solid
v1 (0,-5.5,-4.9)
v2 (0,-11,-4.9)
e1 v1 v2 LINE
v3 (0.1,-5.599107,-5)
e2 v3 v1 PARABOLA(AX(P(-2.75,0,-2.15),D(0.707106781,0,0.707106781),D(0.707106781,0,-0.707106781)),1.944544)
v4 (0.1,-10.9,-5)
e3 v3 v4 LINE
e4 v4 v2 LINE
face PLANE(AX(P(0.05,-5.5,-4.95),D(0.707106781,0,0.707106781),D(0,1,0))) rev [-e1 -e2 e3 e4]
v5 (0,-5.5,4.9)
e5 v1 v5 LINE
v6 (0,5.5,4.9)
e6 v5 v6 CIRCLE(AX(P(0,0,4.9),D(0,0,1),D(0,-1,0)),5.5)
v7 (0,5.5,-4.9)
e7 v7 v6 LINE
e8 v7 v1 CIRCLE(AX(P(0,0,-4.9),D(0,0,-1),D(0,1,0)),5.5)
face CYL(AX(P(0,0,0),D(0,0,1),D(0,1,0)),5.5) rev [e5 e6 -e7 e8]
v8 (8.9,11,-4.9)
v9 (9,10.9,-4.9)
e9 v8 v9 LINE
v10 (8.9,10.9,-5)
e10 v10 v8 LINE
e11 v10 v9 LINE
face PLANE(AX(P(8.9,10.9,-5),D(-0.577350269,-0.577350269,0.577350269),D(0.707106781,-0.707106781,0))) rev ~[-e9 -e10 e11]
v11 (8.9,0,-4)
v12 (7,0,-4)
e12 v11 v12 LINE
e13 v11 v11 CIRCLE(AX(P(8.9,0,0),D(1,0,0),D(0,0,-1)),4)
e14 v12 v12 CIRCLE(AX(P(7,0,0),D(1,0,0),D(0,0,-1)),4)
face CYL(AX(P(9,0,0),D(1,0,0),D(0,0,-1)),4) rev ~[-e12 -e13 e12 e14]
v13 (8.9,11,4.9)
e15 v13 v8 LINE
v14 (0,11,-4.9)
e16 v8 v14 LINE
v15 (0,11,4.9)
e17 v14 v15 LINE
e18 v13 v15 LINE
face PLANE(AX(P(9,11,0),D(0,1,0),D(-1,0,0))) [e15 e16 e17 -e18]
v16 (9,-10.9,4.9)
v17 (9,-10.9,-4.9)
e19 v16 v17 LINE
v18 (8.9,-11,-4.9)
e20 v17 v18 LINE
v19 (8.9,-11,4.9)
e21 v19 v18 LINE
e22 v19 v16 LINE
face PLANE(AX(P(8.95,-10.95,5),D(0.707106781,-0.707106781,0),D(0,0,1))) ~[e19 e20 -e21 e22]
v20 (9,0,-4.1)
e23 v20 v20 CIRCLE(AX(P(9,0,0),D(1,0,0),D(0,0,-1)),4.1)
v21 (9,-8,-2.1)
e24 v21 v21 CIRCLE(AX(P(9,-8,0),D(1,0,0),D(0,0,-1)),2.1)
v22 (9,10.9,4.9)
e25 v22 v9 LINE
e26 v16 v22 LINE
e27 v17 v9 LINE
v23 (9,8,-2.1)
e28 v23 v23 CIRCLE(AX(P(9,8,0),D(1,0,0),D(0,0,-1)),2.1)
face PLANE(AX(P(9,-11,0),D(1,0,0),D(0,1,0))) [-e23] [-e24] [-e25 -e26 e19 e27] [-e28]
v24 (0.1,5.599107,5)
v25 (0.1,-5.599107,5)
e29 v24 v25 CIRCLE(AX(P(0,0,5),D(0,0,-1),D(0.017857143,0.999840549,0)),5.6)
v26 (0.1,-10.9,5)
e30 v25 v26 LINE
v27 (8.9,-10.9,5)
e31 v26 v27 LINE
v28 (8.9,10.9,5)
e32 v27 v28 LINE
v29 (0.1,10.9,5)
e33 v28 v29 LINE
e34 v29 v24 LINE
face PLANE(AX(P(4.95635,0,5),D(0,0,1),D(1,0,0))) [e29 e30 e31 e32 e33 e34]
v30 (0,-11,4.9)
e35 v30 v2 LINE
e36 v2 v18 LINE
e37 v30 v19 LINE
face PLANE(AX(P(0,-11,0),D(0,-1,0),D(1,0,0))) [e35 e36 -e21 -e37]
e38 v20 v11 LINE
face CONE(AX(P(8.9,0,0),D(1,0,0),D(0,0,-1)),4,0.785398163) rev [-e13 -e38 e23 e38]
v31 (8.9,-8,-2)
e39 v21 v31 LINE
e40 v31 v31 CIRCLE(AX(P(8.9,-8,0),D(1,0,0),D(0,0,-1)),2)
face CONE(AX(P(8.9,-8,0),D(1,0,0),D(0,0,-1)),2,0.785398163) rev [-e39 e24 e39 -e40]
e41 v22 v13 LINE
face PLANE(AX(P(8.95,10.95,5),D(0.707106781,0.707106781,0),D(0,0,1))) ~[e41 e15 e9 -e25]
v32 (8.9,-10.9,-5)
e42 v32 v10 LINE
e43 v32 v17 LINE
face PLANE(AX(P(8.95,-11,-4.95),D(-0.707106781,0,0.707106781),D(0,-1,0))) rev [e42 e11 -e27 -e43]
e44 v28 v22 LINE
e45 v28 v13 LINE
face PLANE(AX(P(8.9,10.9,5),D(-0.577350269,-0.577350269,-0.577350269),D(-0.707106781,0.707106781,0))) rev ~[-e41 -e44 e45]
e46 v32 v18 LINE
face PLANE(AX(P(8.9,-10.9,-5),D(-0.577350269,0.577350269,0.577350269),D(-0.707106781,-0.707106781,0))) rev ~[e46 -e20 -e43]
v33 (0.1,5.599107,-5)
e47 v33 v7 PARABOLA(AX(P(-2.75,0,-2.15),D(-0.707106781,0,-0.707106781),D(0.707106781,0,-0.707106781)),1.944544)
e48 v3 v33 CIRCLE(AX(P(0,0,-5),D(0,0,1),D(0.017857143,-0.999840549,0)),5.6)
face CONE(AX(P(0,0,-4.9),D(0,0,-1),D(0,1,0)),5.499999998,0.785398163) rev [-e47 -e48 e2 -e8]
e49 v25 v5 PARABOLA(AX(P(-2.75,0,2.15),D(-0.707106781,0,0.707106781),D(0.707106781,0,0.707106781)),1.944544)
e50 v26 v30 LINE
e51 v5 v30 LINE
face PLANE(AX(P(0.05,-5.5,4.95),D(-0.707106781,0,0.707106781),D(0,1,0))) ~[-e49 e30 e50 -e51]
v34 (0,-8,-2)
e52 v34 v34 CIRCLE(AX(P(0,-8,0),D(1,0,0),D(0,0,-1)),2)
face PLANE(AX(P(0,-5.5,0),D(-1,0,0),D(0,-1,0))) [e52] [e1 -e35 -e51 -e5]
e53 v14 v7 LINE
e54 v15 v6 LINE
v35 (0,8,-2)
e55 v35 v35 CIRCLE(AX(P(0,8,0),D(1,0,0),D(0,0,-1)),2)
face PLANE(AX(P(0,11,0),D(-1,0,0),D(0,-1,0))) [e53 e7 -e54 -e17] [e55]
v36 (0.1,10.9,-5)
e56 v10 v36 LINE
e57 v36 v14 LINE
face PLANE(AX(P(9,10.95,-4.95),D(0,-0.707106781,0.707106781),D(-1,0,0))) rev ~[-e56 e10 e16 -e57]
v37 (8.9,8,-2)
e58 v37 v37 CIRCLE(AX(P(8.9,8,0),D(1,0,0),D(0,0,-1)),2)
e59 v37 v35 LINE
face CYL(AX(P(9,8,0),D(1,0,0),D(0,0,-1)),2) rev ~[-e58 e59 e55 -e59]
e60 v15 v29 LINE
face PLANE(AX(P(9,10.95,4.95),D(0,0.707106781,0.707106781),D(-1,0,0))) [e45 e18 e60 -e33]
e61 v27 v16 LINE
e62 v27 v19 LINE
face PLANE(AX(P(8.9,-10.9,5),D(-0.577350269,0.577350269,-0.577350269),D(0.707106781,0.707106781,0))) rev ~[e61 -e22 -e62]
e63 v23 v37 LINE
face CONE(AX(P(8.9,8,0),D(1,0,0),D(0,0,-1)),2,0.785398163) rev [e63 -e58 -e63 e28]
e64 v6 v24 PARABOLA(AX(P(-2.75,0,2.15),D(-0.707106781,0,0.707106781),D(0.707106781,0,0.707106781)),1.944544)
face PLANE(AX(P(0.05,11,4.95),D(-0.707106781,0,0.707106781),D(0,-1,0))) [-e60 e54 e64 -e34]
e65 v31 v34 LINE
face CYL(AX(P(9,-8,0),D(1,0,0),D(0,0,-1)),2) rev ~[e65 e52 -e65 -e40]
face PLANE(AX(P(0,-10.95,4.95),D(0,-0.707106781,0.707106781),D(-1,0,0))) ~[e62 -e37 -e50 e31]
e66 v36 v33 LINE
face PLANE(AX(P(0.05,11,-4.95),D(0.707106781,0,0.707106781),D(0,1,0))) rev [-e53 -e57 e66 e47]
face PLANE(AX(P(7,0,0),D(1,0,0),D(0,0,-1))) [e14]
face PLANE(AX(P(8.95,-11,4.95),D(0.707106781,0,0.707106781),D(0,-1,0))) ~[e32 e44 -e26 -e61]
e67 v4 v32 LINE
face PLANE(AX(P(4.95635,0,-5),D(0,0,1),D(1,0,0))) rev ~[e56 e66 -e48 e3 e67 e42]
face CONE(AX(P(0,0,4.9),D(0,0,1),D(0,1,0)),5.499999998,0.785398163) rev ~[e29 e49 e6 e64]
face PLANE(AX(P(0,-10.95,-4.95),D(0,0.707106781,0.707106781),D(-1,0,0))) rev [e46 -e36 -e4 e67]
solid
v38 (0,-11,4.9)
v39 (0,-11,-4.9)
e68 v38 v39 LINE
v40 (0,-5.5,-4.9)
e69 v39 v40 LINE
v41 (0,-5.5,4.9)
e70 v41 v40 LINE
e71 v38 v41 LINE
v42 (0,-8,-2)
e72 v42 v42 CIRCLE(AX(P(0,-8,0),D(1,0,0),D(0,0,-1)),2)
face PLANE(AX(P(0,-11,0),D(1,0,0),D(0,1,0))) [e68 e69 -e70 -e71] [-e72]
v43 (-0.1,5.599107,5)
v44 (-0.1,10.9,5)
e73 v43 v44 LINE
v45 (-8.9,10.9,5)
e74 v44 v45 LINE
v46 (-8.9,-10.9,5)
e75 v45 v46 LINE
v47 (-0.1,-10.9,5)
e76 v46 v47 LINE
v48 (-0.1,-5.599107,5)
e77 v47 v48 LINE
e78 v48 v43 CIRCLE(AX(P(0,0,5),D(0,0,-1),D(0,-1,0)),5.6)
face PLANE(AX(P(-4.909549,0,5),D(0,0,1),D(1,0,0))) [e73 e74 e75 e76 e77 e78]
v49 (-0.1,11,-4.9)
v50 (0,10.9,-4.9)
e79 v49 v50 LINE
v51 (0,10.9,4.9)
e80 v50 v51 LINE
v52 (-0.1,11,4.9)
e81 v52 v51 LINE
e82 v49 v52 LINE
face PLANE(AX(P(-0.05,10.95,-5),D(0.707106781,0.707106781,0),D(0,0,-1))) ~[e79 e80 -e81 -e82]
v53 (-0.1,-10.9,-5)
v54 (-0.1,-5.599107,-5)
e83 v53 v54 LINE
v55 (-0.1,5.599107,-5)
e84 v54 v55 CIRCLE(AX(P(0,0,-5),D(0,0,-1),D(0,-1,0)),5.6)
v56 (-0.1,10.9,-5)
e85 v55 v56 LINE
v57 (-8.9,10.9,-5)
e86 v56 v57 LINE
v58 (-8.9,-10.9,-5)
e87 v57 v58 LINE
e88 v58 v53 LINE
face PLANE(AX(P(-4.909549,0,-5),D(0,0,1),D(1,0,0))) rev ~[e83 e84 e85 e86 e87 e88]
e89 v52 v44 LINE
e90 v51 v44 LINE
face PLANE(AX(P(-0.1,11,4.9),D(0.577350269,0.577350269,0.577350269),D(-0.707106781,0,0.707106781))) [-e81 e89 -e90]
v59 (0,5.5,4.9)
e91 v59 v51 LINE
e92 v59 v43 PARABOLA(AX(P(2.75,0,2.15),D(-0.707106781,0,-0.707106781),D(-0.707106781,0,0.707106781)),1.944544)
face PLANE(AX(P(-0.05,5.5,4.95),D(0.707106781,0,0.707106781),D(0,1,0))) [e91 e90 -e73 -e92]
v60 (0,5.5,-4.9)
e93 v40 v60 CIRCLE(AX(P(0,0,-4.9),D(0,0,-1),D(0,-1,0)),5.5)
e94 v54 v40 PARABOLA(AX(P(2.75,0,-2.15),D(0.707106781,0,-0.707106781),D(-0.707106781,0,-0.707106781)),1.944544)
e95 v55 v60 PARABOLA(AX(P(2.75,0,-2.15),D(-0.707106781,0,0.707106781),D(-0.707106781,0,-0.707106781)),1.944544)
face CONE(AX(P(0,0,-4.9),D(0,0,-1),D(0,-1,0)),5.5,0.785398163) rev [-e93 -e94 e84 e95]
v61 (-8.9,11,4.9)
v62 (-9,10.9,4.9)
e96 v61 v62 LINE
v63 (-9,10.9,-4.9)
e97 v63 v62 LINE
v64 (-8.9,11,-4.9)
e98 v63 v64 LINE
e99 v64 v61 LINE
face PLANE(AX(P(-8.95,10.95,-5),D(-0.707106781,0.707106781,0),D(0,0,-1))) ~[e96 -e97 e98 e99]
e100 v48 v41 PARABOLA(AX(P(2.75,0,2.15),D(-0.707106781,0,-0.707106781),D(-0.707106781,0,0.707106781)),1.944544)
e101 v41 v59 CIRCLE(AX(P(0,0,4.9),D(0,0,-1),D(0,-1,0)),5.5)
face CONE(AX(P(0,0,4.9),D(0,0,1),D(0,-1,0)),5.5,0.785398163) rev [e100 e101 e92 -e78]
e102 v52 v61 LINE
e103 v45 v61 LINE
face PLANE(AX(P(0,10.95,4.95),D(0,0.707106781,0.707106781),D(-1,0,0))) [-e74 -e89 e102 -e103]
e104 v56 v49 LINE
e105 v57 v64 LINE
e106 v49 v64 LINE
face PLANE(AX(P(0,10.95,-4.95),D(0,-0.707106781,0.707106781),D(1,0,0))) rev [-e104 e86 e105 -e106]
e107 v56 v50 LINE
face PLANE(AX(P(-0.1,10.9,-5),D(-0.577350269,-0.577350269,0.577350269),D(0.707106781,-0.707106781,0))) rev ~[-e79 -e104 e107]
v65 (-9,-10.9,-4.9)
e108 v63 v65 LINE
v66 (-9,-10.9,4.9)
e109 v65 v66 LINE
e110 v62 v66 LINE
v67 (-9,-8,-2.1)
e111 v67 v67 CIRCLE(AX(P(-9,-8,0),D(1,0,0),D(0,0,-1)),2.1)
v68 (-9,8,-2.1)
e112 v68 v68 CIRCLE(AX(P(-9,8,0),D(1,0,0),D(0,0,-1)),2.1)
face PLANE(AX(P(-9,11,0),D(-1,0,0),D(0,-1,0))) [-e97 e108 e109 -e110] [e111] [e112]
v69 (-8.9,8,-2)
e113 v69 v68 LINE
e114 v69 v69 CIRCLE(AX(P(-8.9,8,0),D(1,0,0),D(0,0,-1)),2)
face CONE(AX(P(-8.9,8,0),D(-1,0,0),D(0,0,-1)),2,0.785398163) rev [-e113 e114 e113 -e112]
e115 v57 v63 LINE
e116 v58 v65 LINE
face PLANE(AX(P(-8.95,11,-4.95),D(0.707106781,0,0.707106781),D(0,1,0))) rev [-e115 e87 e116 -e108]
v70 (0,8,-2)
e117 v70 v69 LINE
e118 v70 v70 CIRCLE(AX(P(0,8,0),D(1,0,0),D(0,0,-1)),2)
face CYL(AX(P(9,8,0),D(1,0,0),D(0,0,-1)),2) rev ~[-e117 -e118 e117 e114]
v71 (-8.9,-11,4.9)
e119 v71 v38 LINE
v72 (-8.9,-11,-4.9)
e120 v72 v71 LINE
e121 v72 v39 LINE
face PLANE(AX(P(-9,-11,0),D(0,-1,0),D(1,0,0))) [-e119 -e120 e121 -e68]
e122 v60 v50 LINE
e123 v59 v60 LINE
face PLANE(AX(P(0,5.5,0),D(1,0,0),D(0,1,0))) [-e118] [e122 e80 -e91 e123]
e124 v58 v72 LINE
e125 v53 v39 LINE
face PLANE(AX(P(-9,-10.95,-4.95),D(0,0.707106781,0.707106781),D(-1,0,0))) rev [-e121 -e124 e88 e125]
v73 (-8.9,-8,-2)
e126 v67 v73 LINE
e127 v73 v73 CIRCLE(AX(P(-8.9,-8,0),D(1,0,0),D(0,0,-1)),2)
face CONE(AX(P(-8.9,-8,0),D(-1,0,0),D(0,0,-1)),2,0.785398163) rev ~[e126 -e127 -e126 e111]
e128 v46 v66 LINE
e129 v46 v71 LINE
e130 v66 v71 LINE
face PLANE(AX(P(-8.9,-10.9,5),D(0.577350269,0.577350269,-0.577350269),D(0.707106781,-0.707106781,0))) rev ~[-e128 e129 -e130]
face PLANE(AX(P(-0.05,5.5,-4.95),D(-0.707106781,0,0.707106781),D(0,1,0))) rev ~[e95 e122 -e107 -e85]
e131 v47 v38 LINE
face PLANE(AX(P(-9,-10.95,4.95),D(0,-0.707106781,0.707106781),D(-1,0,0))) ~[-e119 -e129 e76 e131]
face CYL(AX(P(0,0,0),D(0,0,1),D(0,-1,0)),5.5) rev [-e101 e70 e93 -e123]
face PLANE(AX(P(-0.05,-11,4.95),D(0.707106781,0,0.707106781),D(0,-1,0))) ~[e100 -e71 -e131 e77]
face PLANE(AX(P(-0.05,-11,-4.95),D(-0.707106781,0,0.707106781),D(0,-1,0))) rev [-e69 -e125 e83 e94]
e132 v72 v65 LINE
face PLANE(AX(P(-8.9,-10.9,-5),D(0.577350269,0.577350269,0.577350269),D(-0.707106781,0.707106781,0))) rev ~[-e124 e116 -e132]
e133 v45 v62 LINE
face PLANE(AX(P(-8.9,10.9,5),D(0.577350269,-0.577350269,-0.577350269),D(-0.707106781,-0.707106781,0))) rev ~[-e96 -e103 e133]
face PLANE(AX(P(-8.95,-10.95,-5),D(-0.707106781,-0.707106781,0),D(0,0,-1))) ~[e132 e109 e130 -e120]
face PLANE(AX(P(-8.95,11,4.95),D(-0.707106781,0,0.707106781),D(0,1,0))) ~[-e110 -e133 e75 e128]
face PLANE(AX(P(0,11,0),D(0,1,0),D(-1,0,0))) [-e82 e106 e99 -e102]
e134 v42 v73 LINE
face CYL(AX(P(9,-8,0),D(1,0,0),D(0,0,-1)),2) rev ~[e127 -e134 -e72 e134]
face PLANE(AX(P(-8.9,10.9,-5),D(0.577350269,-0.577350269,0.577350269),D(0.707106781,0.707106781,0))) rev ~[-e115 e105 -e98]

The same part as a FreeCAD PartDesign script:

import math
import FreeCAD as App
import Part
import Sketcher


def edges_at(feature, points):
    """Names of the edges that pass closest to the given points."""
    edges = feature.Shape.Edges
    near = lambda p: min(range(len(edges)), key=lambda i: edges[i].distToShape(Part.Vertex(*p))[0])
    return sorted({f"Edge{near(p) + 1}" for p in points})

doc = App.newDocument("Part")
body = doc.addObject("PartDesign::Body", "Body")

# Sketch on XY plane
sketch1 = body.newObject("Sketcher::SketchObject", "Sketch")
sketch1.AttachmentSupport = (doc.getObject("XY_Plane"), [""])
sketch1.MapMode = "FlatFace"
sketch1.addGeometry([
    Part.LineSegment(App.Vector(0, 6, 0), App.Vector(0, 11, 0)),  # 0
    Part.LineSegment(App.Vector(0, 11, 0), App.Vector(-9, 11, 0)),  # 1
    Part.LineSegment(App.Vector(-9, 11, 0), App.Vector(-9, -11, 0)),  # 2
    Part.LineSegment(App.Vector(-9, -11, 0), App.Vector(0, -11, 0)),  # 3
    Part.LineSegment(App.Vector(0, -11, 0), App.Vector(0, -6, 0)),  # 4
    Part.ArcOfCircle(Part.Circle(App.Vector(0, 0, 0), App.Vector(0, 0, 1), 6), math.radians(90), math.radians(270)),  # 5
], False)
sketch1.addConstraint([
    Sketcher.Constraint("Coincident", 0, 2, 1, 1),
    Sketcher.Constraint("Coincident", 1, 2, 2, 1),
    Sketcher.Constraint("Coincident", 2, 2, 3, 1),
    Sketcher.Constraint("Coincident", 3, 2, 4, 1),
    Sketcher.Constraint("Coincident", 4, 2, 5, 2),
    Sketcher.Constraint("Coincident", 5, 1, 0, 1),
    Sketcher.Constraint("Vertical", 0),
    Sketcher.Constraint("Horizontal", 1),
    Sketcher.Constraint("Vertical", 2),
    Sketcher.Constraint("Horizontal", 3),
    Sketcher.Constraint("Vertical", 4),
    Sketcher.Constraint("Coincident", 5, 3, -1, 1),
    Sketcher.Constraint("Symmetric", 0, 2, 3, 2, -1, 1),
    Sketcher.Constraint("PointOnObject", 0, 2, -2),
    Sketcher.Constraint("Radius", 5, 5.5),
    Sketcher.Constraint("DistanceX", 1, 2, 1, 1, 9.0),
    Sketcher.Constraint("DistanceY", 2, 2, 2, 1, 22.0),
])
pad1 = body.newObject("PartDesign::Pad", "Pad")
pad1.Profile = sketch1
pad1.Length = 10
pad1.Midplane = True
body2 = doc.addObject("PartDesign::Body", "Body001")

# Sketch on XY plane
sketch2 = body2.newObject("Sketcher::SketchObject", "Sketch001")
sketch2.AttachmentSupport = (doc.getObject("XY_Plane001"), [""])
sketch2.MapMode = "FlatFace"
sketch2.addGeometry([
    Part.LineSegment(App.Vector(9, 11, 0), App.Vector(0, 11, 0)),  # 0
    Part.LineSegment(App.Vector(0, 11, 0), App.Vector(0, 6, 0)),  # 1
    Part.ArcOfCircle(Part.Circle(App.Vector(0, 0, 0), App.Vector(0, 0, 1), 5), math.radians(0), math.radians(90)),  # 2
    Part.ArcOfCircle(Part.Circle(App.Vector(0, 0, 0), App.Vector(0, 0, 1), 5), math.radians(-90), math.radians(0)),  # 3
    Part.LineSegment(App.Vector(0, -6, 0), App.Vector(0, -11, 0)),  # 4
    Part.LineSegment(App.Vector(0, -11, 0), App.Vector(9, -11, 0)),  # 5
    Part.LineSegment(App.Vector(9, -11, 0), App.Vector(9, 11, 0)),  # 6
], False)
sketch2.addConstraint([
    Sketcher.Constraint("Coincident", 0, 2, 1, 1),
    Sketcher.Constraint("Coincident", 1, 2, 2, 2),
    Sketcher.Constraint("Tangent", 2, 1, 3, 2),
    Sketcher.Constraint("Coincident", 3, 1, 4, 1),
    Sketcher.Constraint("Coincident", 4, 2, 5, 1),
    Sketcher.Constraint("Coincident", 5, 2, 6, 1),
    Sketcher.Constraint("Coincident", 6, 2, 0, 1),
    Sketcher.Constraint("Horizontal", 0),
    Sketcher.Constraint("Vertical", 1),
    Sketcher.Constraint("Vertical", 4),
    Sketcher.Constraint("Horizontal", 5),
    Sketcher.Constraint("Vertical", 6),
    Sketcher.Constraint("Coincident", 2, 3, -1, 1),
    Sketcher.Constraint("Equal", 2, 3),
    Sketcher.Constraint("Symmetric", 0, 2, 4, 2, -1, 1),
    Sketcher.Constraint("PointOnObject", 0, 2, -2),
    Sketcher.Constraint("PointOnObject", 2, 1, -1),
    Sketcher.Constraint("Radius", 2, 5.5),
    Sketcher.Constraint("DistanceX", 0, 2, 0, 1, 9.0),
    Sketcher.Constraint("DistanceY", 6, 1, 6, 2, 22.0),
])
pad2 = body2.newObject("PartDesign::Pad", "Pad001")
pad2.Profile = sketch2
pad2.Length = 10
pad2.Midplane = True
body3 = doc.addObject("PartDesign::Body", "Body002")
body3.AllowCompound = True

# Sketch on YZ plane
sketch3 = body3.newObject("Sketcher::SketchObject", "Sketch002")
sketch3.AttachmentSupport = (doc.getObject("YZ_Plane002"), [""])
sketch3.MapMode = "FlatFace"
sketch3.AttachmentOffset = App.Placement(App.Vector(0, 0, 9), App.Rotation())
sketch3.addGeometry([
    Part.Circle(App.Vector(8, 0, 0), App.Vector(0, 0, 1), 2),
    Part.Circle(App.Vector(-8, 0, 0), App.Vector(0, 0, 1), 2),
], False)
sketch3.addConstraint([
    Sketcher.Constraint("Equal", 0, 1),
    Sketcher.Constraint("Symmetric", 0, 3, 1, 3, -1, 1),
    Sketcher.Constraint("PointOnObject", 0, 3, -1),
    Sketcher.Constraint("Diameter", 0, 4.0),
    Sketcher.Constraint("DistanceX", -1, 1, 0, 3, 8.0),
])
pad3 = body3.newObject("PartDesign::Pad", "Pad002")
pad3.Profile = sketch3
pad3.Length = 22.679483
pad3.Reversed = True
doc.recompute()

body4 = doc.addObject("PartDesign::Body", "Body003")
body4.BaseFeature = body3
boolean = body.newObject("PartDesign::Boolean", "Boolean")
boolean.Type = "Cut"
boolean.addObjects([body4])
doc.recompute()

chamfer = body.newObject("PartDesign::Chamfer", "Chamfer")
chamfer.Base = (boolean, edges_at(boolean, [
    (-5.5, 0, -5),
    (0, 8.25, 5),
    (-9, -11, 0),
    (-9, 11, 0),
    (0, 11, 0),
    (-4.5, 11, 5),
    (-9, 0, 5),
    (-9, 8, 2),
    (-4.5, -11, 5),
    (-9, -8, 2),
    (0, -8.25, 5),
    (-5.5, 0, 5),
    (0, -8.25, -5),
    (-4.5, -11, -5),
    (-9, 0, -5),
    (-4.5, 11, -5),
    (0, 8.25, -5),
]))
chamfer.Size = 0.1
doc.recompute()

boolean2 = body2.newObject("PartDesign::Boolean", "Boolean001")
boolean2.Type = "Cut"
boolean2.addObjects([body3])

# Sketch on YZ plane
sketch4 = body2.newObject("Sketcher::SketchObject", "Sketch003")
sketch4.AttachmentSupport = (doc.getObject("YZ_Plane001"), [""])
sketch4.MapMode = "FlatFace"
sketch4.AttachmentOffset = App.Placement(App.Vector(0, 0, 9), App.Rotation())
sketch4.addGeometry(Part.Circle(App.Vector(0, 0, 0), App.Vector(0, 0, 1), 4), False)
sketch4.addConstraint([
    Sketcher.Constraint("Coincident", 0, 3, -1, 1),
    Sketcher.Constraint("Diameter", 0, 8.0),
])
pocket1 = body2.newObject("PartDesign::Pocket", "Pocket")
pocket1.Profile = sketch4
pocket1.Length = 2
doc.recompute()

chamfer2 = body2.newObject("PartDesign::Chamfer", "Chamfer001")
chamfer2.Base = (pocket1, edges_at(pocket1, [
    (3.889, 3.889, -5),
    (0, -8.25, 5),
    (9, 11, 0),
    (9, -11, 0),
    (4.5, -11, 5),
    (9, 0, 5),
    (4.5, 11, 5),
    (0, 8.25, 5),
    (3.889, 3.889, 5),
    (0, 8.25, -5),
    (4.5, 11, -5),
    (9, 0, -5),
    (4.5, -11, -5),
    (0, -8.25, -5),
]))
chamfer2.Size = 0.1
doc.recompute()

chamfer3 = body2.newObject("PartDesign::Chamfer", "Chamfer002")
chamfer3.Base = (chamfer2, edges_at(chamfer2, [(9, 8, 2), (9, -8, 2), (9, 0, 4)]))
chamfer3.Size = 0.1

doc.recompute()
